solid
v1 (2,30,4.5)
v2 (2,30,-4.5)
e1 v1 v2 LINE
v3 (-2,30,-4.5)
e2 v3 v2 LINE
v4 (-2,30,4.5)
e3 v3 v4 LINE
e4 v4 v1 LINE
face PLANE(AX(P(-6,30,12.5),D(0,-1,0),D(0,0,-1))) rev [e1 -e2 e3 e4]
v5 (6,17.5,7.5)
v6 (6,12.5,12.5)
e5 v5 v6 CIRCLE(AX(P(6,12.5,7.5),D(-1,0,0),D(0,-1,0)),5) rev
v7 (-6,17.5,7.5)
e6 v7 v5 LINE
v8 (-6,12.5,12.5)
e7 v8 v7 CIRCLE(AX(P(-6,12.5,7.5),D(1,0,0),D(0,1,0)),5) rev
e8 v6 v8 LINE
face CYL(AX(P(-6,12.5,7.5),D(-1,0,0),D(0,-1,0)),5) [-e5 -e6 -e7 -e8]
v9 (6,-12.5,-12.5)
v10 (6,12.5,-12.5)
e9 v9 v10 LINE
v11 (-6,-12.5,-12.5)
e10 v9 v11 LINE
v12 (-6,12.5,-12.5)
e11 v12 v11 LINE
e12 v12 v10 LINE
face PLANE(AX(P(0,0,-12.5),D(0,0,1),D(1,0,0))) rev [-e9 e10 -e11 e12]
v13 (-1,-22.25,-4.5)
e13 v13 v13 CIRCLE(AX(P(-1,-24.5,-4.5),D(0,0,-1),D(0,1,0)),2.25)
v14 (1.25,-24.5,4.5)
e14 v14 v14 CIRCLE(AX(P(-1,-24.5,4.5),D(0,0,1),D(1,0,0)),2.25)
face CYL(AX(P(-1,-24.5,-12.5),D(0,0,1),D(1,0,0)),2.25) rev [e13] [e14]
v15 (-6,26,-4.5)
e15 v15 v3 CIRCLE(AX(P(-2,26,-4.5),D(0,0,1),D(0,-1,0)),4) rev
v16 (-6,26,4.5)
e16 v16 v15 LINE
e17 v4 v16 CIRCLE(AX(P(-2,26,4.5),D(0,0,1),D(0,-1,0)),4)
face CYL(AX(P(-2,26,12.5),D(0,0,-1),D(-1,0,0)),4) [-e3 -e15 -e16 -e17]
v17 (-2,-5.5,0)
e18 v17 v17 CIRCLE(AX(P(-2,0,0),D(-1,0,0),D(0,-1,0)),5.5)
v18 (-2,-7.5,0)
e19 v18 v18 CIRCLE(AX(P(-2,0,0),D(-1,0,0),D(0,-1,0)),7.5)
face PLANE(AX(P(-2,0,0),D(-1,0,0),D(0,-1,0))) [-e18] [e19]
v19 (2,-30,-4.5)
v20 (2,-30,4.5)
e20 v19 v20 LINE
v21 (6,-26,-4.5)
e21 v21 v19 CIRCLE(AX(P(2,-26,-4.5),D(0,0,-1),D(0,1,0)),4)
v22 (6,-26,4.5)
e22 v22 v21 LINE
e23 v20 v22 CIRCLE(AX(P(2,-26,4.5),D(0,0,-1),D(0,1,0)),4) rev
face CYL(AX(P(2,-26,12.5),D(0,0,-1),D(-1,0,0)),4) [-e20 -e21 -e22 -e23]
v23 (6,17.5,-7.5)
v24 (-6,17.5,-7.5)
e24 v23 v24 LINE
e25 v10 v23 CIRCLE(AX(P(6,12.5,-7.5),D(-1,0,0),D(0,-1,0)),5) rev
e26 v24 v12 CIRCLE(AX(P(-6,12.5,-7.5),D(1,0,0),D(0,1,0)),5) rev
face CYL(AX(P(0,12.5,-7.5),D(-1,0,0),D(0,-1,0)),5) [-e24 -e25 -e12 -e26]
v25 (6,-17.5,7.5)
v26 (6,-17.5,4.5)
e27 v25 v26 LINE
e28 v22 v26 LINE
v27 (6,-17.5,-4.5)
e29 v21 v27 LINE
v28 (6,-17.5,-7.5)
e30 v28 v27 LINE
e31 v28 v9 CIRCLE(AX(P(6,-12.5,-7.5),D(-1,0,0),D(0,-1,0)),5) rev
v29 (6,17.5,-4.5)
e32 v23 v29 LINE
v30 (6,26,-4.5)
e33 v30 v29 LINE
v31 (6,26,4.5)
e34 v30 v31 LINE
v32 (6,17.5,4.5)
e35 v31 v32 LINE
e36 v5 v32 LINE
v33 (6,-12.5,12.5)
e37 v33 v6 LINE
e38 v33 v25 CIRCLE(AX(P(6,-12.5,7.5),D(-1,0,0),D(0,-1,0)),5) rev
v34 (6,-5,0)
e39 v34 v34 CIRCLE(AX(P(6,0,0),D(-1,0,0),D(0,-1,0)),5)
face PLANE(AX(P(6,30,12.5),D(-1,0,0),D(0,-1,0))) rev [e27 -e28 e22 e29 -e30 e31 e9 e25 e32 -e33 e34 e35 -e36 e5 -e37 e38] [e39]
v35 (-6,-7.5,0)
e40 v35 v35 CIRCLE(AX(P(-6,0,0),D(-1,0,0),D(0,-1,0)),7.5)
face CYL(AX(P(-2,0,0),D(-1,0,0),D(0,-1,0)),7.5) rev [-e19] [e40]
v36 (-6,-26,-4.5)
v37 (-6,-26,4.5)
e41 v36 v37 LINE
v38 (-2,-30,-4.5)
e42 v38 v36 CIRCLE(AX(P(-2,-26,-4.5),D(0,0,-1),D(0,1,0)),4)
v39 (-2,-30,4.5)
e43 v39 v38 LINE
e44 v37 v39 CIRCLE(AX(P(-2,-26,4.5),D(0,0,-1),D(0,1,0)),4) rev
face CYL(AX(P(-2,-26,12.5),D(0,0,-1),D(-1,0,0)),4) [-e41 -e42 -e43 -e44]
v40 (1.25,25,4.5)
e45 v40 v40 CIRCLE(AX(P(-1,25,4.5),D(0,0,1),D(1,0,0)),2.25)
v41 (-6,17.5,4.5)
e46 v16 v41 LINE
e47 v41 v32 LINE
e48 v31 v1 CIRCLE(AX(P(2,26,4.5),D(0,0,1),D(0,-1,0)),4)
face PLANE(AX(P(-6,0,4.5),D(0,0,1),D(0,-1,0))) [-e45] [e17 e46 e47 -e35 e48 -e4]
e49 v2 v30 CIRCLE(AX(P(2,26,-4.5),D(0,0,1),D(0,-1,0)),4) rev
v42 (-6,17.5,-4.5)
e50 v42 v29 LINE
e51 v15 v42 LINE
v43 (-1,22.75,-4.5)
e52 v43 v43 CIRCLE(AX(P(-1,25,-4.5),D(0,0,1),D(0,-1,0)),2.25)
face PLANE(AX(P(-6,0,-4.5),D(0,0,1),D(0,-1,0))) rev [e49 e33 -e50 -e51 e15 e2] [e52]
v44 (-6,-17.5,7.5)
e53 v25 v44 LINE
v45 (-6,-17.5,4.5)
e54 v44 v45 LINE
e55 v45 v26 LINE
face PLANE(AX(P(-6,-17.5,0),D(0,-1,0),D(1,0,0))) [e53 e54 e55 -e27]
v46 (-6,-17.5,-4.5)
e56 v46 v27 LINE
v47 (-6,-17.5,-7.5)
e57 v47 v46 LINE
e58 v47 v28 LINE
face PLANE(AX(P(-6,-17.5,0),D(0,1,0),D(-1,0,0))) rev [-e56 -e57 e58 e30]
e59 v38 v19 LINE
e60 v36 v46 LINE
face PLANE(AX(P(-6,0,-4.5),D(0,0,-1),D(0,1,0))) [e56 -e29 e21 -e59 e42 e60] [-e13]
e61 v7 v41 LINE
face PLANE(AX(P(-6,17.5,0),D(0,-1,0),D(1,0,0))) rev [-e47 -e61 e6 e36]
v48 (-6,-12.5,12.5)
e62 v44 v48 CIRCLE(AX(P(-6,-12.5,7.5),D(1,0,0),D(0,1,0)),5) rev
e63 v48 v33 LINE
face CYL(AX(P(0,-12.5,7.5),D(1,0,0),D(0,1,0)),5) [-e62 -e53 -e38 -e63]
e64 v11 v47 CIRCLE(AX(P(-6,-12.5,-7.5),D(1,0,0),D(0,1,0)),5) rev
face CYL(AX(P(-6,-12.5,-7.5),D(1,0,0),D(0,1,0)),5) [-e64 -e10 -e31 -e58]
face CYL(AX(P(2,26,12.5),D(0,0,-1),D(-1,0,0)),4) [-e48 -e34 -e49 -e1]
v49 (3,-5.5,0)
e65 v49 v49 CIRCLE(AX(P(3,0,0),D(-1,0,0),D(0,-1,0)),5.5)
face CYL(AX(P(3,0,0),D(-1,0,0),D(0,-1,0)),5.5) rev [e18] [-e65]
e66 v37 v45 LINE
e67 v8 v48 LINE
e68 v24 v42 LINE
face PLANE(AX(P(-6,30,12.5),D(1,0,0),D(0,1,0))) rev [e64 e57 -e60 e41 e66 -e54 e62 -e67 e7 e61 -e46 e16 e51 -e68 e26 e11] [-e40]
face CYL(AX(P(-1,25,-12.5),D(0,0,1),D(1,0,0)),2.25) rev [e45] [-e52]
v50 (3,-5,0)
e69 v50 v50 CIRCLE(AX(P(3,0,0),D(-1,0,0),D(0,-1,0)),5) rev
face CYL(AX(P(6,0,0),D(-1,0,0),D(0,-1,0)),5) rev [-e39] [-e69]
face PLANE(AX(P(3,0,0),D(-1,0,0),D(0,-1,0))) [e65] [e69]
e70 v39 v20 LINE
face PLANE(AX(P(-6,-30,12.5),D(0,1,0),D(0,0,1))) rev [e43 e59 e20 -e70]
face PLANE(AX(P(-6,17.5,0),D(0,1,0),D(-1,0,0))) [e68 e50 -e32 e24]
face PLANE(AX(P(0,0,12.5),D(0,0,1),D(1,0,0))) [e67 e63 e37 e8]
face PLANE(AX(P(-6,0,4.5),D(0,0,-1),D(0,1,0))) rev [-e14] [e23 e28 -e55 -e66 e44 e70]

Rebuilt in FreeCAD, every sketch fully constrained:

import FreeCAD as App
import Part
import Sketcher
Q = App.Units.Quantity


def edges_at(feature, points):
    """Names of the edges that pass closest to the given points."""
    edges = feature.Shape.Edges
    near = lambda p: min(range(len(edges)), key=lambda i: edges[i].distToShape(Part.Vertex(*p))[0])
    return sorted({f"Edge{near(p) + 1}" for p in points})

doc = App.newDocument("Part")
body = doc.addObject("PartDesign::Body", "Body")

sketch1 = body.newObject("Sketcher::SketchObject", "Sketch")
sketch1.AttachmentSupport = (doc.getObject("XY_Plane"), [""])
sketch1.MapMode = "FlatFace"
sketch1.addGeometry([
    Part.LineSegment(App.Vector(-6, 30, 0), App.Vector(-6, -30, 0)),
    Part.LineSegment(App.Vector(-6, -30, 0), App.Vector(6, -30, 0)),
    Part.LineSegment(App.Vector(6, -30, 0), App.Vector(6, 30, 0)),
    Part.LineSegment(App.Vector(6, 30, 0), App.Vector(-6, 30, 0)),
], False)
sketch1.addConstraint([
    Sketcher.Constraint("Coincident", 0, 2, 1, 1),
    Sketcher.Constraint("Coincident", 1, 2, 2, 1),
    Sketcher.Constraint("Coincident", 2, 2, 3, 1),
    Sketcher.Constraint("Coincident", 3, 2, 0, 1),
    Sketcher.Constraint("Vertical", 0),
    Sketcher.Constraint("Horizontal", 1),
    Sketcher.Constraint("Vertical", 2),
    Sketcher.Constraint("Horizontal", 3),
    Sketcher.Constraint("Symmetric", 0, 2, 2, 2, -1, 1),
    Sketcher.Constraint("DistanceX", 1, 1, 1, 2, Q("12 mm")),
    Sketcher.Constraint("DistanceY", 0, 2, 0, 1, Q("60 mm")),
])
pad1 = body.newObject("PartDesign::Pad", "Pad")
pad1.Profile = sketch1
pad1.Length = 25
pad1.Midplane = True

sketch2 = body.newObject("Sketcher::SketchObject", "Sketch001")
sketch2.AttachmentSupport = (doc.getObject("YZ_Plane"), [""])
sketch2.MapMode = "FlatFace"
sketch2.AttachmentOffset = App.Placement(App.Vector(0, 0, 6), App.Rotation())
sketch2.addGeometry([
    Part.LineSegment(App.Vector(-18, 12, 0), App.Vector(-30, 12, 0)),
    Part.LineSegment(App.Vector(-30, 12, 0), App.Vector(-30, 4, 0)),
    Part.LineSegment(App.Vector(-30, 4, 0), App.Vector(-18, 4, 0)),
    Part.LineSegment(App.Vector(-18, 4, 0), App.Vector(-18, 12, 0)),
    Part.LineSegment(App.Vector(-18, -4, 0), App.Vector(-30, -4, 0)),
    Part.LineSegment(App.Vector(-30, -4, 0), App.Vector(-30, -12, 0)),
    Part.LineSegment(App.Vector(-30, -12, 0), App.Vector(-18, -12, 0)),
    Part.LineSegment(App.Vector(-18, -12, 0), App.Vector(-18, -4, 0)),
    Part.LineSegment(App.Vector(30, -4, 0), App.Vector(18, -4, 0)),
    Part.LineSegment(App.Vector(18, -4, 0), App.Vector(18, -12, 0)),
    Part.LineSegment(App.Vector(18, -12, 0), App.Vector(30, -12, 0)),
    Part.LineSegment(App.Vector(30, -12, 0), App.Vector(30, -4, 0)),
    Part.LineSegment(App.Vector(30, 12, 0), App.Vector(18, 12, 0)),
    Part.LineSegment(App.Vector(18, 12, 0), App.Vector(18, 4, 0)),
    Part.LineSegment(App.Vector(18, 4, 0), App.Vector(30, 4, 0)),
    Part.LineSegment(App.Vector(30, 4, 0), App.Vector(30, 12, 0)),
], False)
sketch2.addConstraint([
    Sketcher.Constraint("Coincident", 0, 2, 1, 1),
    Sketcher.Constraint("Coincident", 1, 2, 2, 1),
    Sketcher.Constraint("Coincident", 2, 2, 3, 1),
    Sketcher.Constraint("Coincident", 3, 2, 0, 1),
    Sketcher.Constraint("Coincident", 4, 2, 5, 1),
    Sketcher.Constraint("Coincident", 5, 2, 6, 1),
    Sketcher.Constraint("Coincident", 6, 2, 7, 1),
    Sketcher.Constraint("Coincident", 7, 2, 4, 1),
    Sketcher.Constraint("Coincident", 8, 2, 9, 1),
    Sketcher.Constraint("Coincident", 9, 2, 10, 1),
    Sketcher.Constraint("Coincident", 10, 2, 11, 1),
    Sketcher.Constraint("Coincident", 11, 2, 8, 1),
    Sketcher.Constraint("Coincident", 12, 2, 13, 1),
    Sketcher.Constraint("Coincident", 13, 2, 14, 1),
    Sketcher.Constraint("Coincident", 14, 2, 15, 1),
    Sketcher.Constraint("Coincident", 15, 2, 12, 1),
    Sketcher.Constraint("Horizontal", 0),
    Sketcher.Constraint("Vertical", 1),
    Sketcher.Constraint("Horizontal", 2),
    Sketcher.Constraint("Vertical", 3),
    Sketcher.Constraint("Horizontal", 4),
    Sketcher.Constraint("Vertical", 5),
    Sketcher.Constraint("Horizontal", 6),
    Sketcher.Constraint("Vertical", 7),
    Sketcher.Constraint("Horizontal", 8),
    Sketcher.Constraint("Vertical", 9),
    Sketcher.Constraint("Horizontal", 10),
    Sketcher.Constraint("Vertical", 11),
    Sketcher.Constraint("Horizontal", 12),
    Sketcher.Constraint("Vertical", 13),
    Sketcher.Constraint("Horizontal", 14),
    Sketcher.Constraint("Vertical", 15),
    Sketcher.Constraint("Symmetric", 2, 2, 8, 2, -1, 1),
    Sketcher.Constraint("Symmetric", 0, 2, 10, 2, -1, 1),
    Sketcher.Constraint("Symmetric", 6, 2, 12, 2, -1, 1),
    Sketcher.Constraint("Symmetric", 4, 2, 14, 2, -1, 1),
    Sketcher.Constraint("Symmetric", 7, 2, 8, 2, -2),
    Sketcher.Constraint("Symmetric", 5, 2, 10, 2, -2),
    Sketcher.Constraint("DistanceY", 1, 2, 1, 1, Q("8 mm")),
    Sketcher.Constraint("DistanceX", 0, 2, 0, 1, Q("12.5 mm")),
    Sketcher.Constraint("DistanceX", 0, 2, -1, 1, Q("30 mm")),
    Sketcher.Constraint("DistanceY", 4, 2, 1, 2, Q("9 mm")),
])
pocket1 = body.newObject("PartDesign::Pocket", "Pocket")
pocket1.Profile = sketch2
pocket1.Type = "ThroughAll"

sketch3 = body.newObject("Sketcher::SketchObject", "Sketch002")
sketch3.AttachmentSupport = (doc.getObject("XY_Plane"), [""])
sketch3.MapMode = "FlatFace"
sketch3.AttachmentOffset = App.Placement(App.Vector(0, 0, 4.5), App.Rotation())
sketch3.addGeometry([
    Part.Circle(App.Vector(-1, 25, 0), App.Vector(0, 0, 1), 2.2),
    Part.Circle(App.Vector(-1, -24.5, 0), App.Vector(0, 0, 1), 2.2),
], False)
sketch3.addConstraint([
    Sketcher.Constraint("Equal", 0, 1),
    Sketcher.Constraint("Vertical", 0, 3, 1, 3),
    Sketcher.Constraint("Diameter", 0, Q("4.5 mm")),
    Sketcher.Constraint("DistanceX", 0, 3, -1, 1, Q("1 mm")),
    Sketcher.Constraint("DistanceY", -1, 1, 0, 3, Q("25 mm")),
    Sketcher.Constraint("DistanceY", 1, 3, -1, 1, Q("24.5 mm")),
])
pocket2 = body.newObject("PartDesign::Pocket", "Pocket001")
pocket2.Profile = sketch3
pocket2.Type = "ThroughAll"
doc.recompute()

fillet = body.newObject("PartDesign::Fillet", "Fillet")
fillet.Base = (pocket2, edges_at(pocket2, [
    (0, 17.5, 12.5),
    (0, 17.5, -12.5),
    (0, -17.5, -12.5),
    (0, -17.5, 12.5),
]))
fillet.Radius = 5
doc.recompute()

fillet2 = body.newObject("PartDesign::Fillet", "Fillet001")
fillet2.Base = (fillet, edges_at(fillet, [
    (6, -30, 0),
    (-6, -30, 0),
    (-6, 30, 0),
    (6, 30, 0),
]))
fillet2.Radius = 4

sketch4 = body.newObject("Sketcher::SketchObject", "Sketch003")
sketch4.AttachmentSupport = (doc.getObject("YZ_Plane"), [""])
sketch4.MapMode = "FlatFace"
sketch4.AttachmentOffset = App.Placement(App.Vector(0, 0, 2), App.Rotation())
sketch4.addGeometry(Part.Circle(App.Vector(0, 0, 0), App.Vector(0, 0, 1), 5), False)
sketch4.addConstraint([
    Sketcher.Constraint("Coincident", 0, 3, -1, 1),
    Sketcher.Constraint("Diameter", 0, Q("10 mm")),
])
pocket3 = body.newObject("PartDesign::Pocket", "Pocket002")
pocket3.Profile = sketch4
pocket3.Length = 4
pocket3.Reversed = True

sketch5 = body.newObject("Sketcher::SketchObject", "Sketch004")
sketch5.AttachmentSupport = (doc.getObject("YZ_Plane"), [""])
sketch5.MapMode = "FlatFace"
sketch5.AttachmentOffset = App.Placement(App.Vector(0, 0, -6), App.Rotation())
sketch5.addGeometry(Part.Circle(App.Vector(0, 0, 0), App.Vector(0, 0, 1), 8), False)
sketch5.addConstraint([
    Sketcher.Constraint("Coincident", 0, 3, -1, 1),
    Sketcher.Constraint("Diameter", 0, Q("15 mm")),
])
pocket4 = body.newObject("PartDesign::Pocket", "Pocket003")
pocket4.Profile = sketch5
pocket4.Length = 4
pocket4.Reversed = True

sketch6 = body.newObject("Sketcher::SketchObject", "Sketch005")
sketch6.AttachmentSupport = (doc.getObject("YZ_Plane"), [""])
sketch6.MapMode = "FlatFace"
sketch6.AttachmentOffset = App.Placement(App.Vector(0, 0, -2), App.Rotation())
sketch6.addGeometry(Part.Circle(App.Vector(0, 0, 0), App.Vector(0, 0, 1), 6), False)
sketch6.addConstraint([
    Sketcher.Constraint("Coincident", 0, 3, -1, 1),
    Sketcher.Constraint("Diameter", 0, Q("11 mm")),
])
pocket5 = body.newObject("PartDesign::Pocket", "Pocket004")
pocket5.Profile = sketch6
pocket5.Length = 5
pocket5.Reversed = True

doc.recompute()
